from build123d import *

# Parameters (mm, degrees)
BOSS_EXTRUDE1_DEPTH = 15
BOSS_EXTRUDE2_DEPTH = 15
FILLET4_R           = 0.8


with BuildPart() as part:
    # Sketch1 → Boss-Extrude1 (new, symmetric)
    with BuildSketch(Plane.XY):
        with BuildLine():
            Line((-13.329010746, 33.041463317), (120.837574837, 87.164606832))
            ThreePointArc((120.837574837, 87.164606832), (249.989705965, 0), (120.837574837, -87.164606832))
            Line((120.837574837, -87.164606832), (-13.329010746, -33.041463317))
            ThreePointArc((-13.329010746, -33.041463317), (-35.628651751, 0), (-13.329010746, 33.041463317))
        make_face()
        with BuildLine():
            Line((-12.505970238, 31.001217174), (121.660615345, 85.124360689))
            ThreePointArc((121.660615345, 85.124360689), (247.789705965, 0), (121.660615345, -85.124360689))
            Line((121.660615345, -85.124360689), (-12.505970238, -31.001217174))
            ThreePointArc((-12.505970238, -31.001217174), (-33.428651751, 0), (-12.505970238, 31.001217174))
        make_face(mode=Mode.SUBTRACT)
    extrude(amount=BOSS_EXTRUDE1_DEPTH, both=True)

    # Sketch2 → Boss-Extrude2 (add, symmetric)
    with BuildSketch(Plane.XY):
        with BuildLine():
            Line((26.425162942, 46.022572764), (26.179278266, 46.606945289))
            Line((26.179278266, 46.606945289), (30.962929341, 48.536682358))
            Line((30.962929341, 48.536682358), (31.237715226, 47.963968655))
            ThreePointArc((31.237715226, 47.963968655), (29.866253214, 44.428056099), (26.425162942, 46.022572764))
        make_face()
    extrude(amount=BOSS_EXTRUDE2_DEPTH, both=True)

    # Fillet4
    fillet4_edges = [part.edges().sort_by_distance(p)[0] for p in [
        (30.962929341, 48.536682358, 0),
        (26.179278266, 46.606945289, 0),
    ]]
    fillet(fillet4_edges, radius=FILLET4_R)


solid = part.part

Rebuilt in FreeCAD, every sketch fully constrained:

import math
import FreeCAD as App
import Part
import Sketcher
Q = App.Units.Quantity


def edges_at(feature, points):
    """Names of the edges that pass closest to the given points."""
    edges = feature.Shape.Edges
    near = lambda p: min(range(len(edges)), key=lambda i: edges[i].distToShape(Part.Vertex(*p))[0])
    return sorted({f"Edge{near(p) + 1}" for p in points})

doc = App.newDocument("Part")
body = doc.addObject("PartDesign::Body", "Body")

# Sketch on XY plane
sketch1 = body.newObject("Sketcher::SketchObject", "Sketch")
sketch1.AttachmentSupport = (doc.getObject("XY_Plane"), [""])
sketch1.MapMode = "FlatFace"
sketch1.addGeometry(Part.LineSegment(App.Vector(121, 87, 0), App.Vector(-13, 33, 0)), False)
sketch1.addGeometry(Part.ArcOfCircle(Part.Circle(App.Vector(0, 0, 0), App.Vector(0, 0, 1), 36), math.radians(112), math.radians(248)), False)
sketch1.addGeometry(Part.LineSegment(App.Vector(-13, -33, 0), App.Vector(121, -87, 0)), False)
sketch1.addGeometry(Part.ArcOfCircle(Part.Circle(App.Vector(156, 0, 0), App.Vector(0, 0, 1), 94), math.radians(-112), math.radians(112)), False)
sketch1.addGeometry(Part.LineSegment(App.Vector(-13, 31, 0), App.Vector(122, 85, 0)), False)
sketch1.addGeometry(Part.ArcOfCircle(Part.Circle(App.Vector(156, 0, 0), App.Vector(0, 0, 1), 92), math.radians(-112), math.radians(112)), False)
sketch1.addGeometry(Part.LineSegment(App.Vector(122, -85, 0), App.Vector(-13, -31, 0)), False)
sketch1.addGeometry(Part.ArcOfCircle(Part.Circle(App.Vector(0, 0, 0), App.Vector(0, 0, 1), 33), math.radians(112), math.radians(248)), False)
sketch1.addConstraint(Sketcher.Constraint("Tangent", 0, 2, 1, 1))
sketch1.addConstraint(Sketcher.Constraint("Tangent", 1, 2, 2, 1))
sketch1.addConstraint(Sketcher.Constraint("Tangent", 2, 2, 3, 1))
sketch1.addConstraint(Sketcher.Constraint("Tangent", 3, 2, 0, 1))
sketch1.addConstraint(Sketcher.Constraint("Tangent", 4, 2, 5, 2))
sketch1.addConstraint(Sketcher.Constraint("Tangent", 5, 1, 6, 1))
sketch1.addConstraint(Sketcher.Constraint("Tangent", 6, 2, 7, 2))
sketch1.addConstraint(Sketcher.Constraint("Tangent", 7, 1, 4, 1))
sketch1.addConstraint(Sketcher.Constraint("Coincident", 1, 3, -1, 1))
sketch1.addConstraint(Sketcher.Constraint("Coincident", 7, 3, -1, 1))
sketch1.addConstraint(Sketcher.Constraint("Coincident", 5, 3, 3, 3))
sketch1.addConstraint(Sketcher.Constraint("PointOnObject", 3, 3, -1))
sketch1.addConstraint(Sketcher.Constraint("Parallel", 0, 4))
sketch1.addConstraint(Sketcher.Constraint("DistanceX", -1, 1, 3, 3, Q("156 mm")))
sketch1.addConstraint(Sketcher.Constraint("Radius", 1, Q("35.628652 mm")))
sketch1.addConstraint(Sketcher.Constraint("Radius", 7, Q("33.428652 mm")))
sketch1.addConstraint(Sketcher.Constraint("Distance", 0, Q("144.671999 mm")))
pad1 = body.newObject("PartDesign::Pad", "Pad")
pad1.Profile = sketch1
pad1.Length = 30
pad1.Midplane = True

# Sketch on XY plane
sketch2 = body.newObject("Sketcher::SketchObject", "Sketch001")
sketch2.AttachmentSupport = (doc.getObject("XY_Plane"), [""])
sketch2.MapMode = "FlatFace"
sketch2.addGeometry(Part.LineSegment(App.Vector(26.2, 46.6, 0), App.Vector(26.4, 46, 0)), False)
sketch2.addGeometry(Part.ArcOfCircle(Part.Circle(App.Vector(28.9, 46.8, 0), App.Vector(0, 0, 1), 2.6), math.radians(-162), math.radians(26)), False)
sketch2.addGeometry(Part.LineSegment(App.Vector(31.2, 48, 0), App.Vector(31, 48.5, 0)), False)
sketch2.addGeometry(Part.LineSegment(App.Vector(31, 48.5, 0), App.Vector(26.2, 46.6, 0)), False)
sketch2.addConstraint(Sketcher.Constraint("Coincident", 0, 2, 1, 1))
sketch2.addConstraint(Sketcher.Constraint("Tangent", 1, 2, 2, 1))
sketch2.addConstraint(Sketcher.Constraint("Coincident", 2, 2, 3, 1))
sketch2.addConstraint(Sketcher.Constraint("Coincident", 3, 2, 0, 1))
sketch2.addConstraint(Sketcher.Constraint("Radius", 1, Q("2.6 mm")))
sketch2.addConstraint(Sketcher.Constraint("DistanceX", -1, 1, 1, 3, Q("28.893569 mm")))
sketch2.addConstraint(Sketcher.Constraint("DistanceY", -1, 1, 1, 2, Q("47.963969 mm")))
sketch2.addConstraint(Sketcher.Constraint("DistanceX", -1, 1, 2, 2, Q("30.962929 mm")))
sketch2.addConstraint(Sketcher.Constraint("DistanceX", -1, 1, 3, 2, Q("26.179278 mm")))
sketch2.addConstraint(Sketcher.Constraint("DistanceY", 0, 2, 2, 2, Q("2.51411 mm")))
sketch2.addConstraint(Sketcher.Constraint("DistanceY", 3, 2, 1, 3, Q("0.232311 mm")))
sketch2.addConstraint(Sketcher.Constraint("Distance", 0, Q("0.633996 mm")))
pad2 = body.newObject("PartDesign::Pad", "Pad001")
pad2.Profile = sketch2
pad2.Length = 30
pad2.Midplane = True
doc.recompute()

fillet = body.newObject("PartDesign::Fillet", "Fillet")
fillet.Base = (pad2, edges_at(pad2, [(30.963, 48.537, 0), (26.179, 46.607, 0)]))
fillet.Radius = 0.8

doc.recompute()
